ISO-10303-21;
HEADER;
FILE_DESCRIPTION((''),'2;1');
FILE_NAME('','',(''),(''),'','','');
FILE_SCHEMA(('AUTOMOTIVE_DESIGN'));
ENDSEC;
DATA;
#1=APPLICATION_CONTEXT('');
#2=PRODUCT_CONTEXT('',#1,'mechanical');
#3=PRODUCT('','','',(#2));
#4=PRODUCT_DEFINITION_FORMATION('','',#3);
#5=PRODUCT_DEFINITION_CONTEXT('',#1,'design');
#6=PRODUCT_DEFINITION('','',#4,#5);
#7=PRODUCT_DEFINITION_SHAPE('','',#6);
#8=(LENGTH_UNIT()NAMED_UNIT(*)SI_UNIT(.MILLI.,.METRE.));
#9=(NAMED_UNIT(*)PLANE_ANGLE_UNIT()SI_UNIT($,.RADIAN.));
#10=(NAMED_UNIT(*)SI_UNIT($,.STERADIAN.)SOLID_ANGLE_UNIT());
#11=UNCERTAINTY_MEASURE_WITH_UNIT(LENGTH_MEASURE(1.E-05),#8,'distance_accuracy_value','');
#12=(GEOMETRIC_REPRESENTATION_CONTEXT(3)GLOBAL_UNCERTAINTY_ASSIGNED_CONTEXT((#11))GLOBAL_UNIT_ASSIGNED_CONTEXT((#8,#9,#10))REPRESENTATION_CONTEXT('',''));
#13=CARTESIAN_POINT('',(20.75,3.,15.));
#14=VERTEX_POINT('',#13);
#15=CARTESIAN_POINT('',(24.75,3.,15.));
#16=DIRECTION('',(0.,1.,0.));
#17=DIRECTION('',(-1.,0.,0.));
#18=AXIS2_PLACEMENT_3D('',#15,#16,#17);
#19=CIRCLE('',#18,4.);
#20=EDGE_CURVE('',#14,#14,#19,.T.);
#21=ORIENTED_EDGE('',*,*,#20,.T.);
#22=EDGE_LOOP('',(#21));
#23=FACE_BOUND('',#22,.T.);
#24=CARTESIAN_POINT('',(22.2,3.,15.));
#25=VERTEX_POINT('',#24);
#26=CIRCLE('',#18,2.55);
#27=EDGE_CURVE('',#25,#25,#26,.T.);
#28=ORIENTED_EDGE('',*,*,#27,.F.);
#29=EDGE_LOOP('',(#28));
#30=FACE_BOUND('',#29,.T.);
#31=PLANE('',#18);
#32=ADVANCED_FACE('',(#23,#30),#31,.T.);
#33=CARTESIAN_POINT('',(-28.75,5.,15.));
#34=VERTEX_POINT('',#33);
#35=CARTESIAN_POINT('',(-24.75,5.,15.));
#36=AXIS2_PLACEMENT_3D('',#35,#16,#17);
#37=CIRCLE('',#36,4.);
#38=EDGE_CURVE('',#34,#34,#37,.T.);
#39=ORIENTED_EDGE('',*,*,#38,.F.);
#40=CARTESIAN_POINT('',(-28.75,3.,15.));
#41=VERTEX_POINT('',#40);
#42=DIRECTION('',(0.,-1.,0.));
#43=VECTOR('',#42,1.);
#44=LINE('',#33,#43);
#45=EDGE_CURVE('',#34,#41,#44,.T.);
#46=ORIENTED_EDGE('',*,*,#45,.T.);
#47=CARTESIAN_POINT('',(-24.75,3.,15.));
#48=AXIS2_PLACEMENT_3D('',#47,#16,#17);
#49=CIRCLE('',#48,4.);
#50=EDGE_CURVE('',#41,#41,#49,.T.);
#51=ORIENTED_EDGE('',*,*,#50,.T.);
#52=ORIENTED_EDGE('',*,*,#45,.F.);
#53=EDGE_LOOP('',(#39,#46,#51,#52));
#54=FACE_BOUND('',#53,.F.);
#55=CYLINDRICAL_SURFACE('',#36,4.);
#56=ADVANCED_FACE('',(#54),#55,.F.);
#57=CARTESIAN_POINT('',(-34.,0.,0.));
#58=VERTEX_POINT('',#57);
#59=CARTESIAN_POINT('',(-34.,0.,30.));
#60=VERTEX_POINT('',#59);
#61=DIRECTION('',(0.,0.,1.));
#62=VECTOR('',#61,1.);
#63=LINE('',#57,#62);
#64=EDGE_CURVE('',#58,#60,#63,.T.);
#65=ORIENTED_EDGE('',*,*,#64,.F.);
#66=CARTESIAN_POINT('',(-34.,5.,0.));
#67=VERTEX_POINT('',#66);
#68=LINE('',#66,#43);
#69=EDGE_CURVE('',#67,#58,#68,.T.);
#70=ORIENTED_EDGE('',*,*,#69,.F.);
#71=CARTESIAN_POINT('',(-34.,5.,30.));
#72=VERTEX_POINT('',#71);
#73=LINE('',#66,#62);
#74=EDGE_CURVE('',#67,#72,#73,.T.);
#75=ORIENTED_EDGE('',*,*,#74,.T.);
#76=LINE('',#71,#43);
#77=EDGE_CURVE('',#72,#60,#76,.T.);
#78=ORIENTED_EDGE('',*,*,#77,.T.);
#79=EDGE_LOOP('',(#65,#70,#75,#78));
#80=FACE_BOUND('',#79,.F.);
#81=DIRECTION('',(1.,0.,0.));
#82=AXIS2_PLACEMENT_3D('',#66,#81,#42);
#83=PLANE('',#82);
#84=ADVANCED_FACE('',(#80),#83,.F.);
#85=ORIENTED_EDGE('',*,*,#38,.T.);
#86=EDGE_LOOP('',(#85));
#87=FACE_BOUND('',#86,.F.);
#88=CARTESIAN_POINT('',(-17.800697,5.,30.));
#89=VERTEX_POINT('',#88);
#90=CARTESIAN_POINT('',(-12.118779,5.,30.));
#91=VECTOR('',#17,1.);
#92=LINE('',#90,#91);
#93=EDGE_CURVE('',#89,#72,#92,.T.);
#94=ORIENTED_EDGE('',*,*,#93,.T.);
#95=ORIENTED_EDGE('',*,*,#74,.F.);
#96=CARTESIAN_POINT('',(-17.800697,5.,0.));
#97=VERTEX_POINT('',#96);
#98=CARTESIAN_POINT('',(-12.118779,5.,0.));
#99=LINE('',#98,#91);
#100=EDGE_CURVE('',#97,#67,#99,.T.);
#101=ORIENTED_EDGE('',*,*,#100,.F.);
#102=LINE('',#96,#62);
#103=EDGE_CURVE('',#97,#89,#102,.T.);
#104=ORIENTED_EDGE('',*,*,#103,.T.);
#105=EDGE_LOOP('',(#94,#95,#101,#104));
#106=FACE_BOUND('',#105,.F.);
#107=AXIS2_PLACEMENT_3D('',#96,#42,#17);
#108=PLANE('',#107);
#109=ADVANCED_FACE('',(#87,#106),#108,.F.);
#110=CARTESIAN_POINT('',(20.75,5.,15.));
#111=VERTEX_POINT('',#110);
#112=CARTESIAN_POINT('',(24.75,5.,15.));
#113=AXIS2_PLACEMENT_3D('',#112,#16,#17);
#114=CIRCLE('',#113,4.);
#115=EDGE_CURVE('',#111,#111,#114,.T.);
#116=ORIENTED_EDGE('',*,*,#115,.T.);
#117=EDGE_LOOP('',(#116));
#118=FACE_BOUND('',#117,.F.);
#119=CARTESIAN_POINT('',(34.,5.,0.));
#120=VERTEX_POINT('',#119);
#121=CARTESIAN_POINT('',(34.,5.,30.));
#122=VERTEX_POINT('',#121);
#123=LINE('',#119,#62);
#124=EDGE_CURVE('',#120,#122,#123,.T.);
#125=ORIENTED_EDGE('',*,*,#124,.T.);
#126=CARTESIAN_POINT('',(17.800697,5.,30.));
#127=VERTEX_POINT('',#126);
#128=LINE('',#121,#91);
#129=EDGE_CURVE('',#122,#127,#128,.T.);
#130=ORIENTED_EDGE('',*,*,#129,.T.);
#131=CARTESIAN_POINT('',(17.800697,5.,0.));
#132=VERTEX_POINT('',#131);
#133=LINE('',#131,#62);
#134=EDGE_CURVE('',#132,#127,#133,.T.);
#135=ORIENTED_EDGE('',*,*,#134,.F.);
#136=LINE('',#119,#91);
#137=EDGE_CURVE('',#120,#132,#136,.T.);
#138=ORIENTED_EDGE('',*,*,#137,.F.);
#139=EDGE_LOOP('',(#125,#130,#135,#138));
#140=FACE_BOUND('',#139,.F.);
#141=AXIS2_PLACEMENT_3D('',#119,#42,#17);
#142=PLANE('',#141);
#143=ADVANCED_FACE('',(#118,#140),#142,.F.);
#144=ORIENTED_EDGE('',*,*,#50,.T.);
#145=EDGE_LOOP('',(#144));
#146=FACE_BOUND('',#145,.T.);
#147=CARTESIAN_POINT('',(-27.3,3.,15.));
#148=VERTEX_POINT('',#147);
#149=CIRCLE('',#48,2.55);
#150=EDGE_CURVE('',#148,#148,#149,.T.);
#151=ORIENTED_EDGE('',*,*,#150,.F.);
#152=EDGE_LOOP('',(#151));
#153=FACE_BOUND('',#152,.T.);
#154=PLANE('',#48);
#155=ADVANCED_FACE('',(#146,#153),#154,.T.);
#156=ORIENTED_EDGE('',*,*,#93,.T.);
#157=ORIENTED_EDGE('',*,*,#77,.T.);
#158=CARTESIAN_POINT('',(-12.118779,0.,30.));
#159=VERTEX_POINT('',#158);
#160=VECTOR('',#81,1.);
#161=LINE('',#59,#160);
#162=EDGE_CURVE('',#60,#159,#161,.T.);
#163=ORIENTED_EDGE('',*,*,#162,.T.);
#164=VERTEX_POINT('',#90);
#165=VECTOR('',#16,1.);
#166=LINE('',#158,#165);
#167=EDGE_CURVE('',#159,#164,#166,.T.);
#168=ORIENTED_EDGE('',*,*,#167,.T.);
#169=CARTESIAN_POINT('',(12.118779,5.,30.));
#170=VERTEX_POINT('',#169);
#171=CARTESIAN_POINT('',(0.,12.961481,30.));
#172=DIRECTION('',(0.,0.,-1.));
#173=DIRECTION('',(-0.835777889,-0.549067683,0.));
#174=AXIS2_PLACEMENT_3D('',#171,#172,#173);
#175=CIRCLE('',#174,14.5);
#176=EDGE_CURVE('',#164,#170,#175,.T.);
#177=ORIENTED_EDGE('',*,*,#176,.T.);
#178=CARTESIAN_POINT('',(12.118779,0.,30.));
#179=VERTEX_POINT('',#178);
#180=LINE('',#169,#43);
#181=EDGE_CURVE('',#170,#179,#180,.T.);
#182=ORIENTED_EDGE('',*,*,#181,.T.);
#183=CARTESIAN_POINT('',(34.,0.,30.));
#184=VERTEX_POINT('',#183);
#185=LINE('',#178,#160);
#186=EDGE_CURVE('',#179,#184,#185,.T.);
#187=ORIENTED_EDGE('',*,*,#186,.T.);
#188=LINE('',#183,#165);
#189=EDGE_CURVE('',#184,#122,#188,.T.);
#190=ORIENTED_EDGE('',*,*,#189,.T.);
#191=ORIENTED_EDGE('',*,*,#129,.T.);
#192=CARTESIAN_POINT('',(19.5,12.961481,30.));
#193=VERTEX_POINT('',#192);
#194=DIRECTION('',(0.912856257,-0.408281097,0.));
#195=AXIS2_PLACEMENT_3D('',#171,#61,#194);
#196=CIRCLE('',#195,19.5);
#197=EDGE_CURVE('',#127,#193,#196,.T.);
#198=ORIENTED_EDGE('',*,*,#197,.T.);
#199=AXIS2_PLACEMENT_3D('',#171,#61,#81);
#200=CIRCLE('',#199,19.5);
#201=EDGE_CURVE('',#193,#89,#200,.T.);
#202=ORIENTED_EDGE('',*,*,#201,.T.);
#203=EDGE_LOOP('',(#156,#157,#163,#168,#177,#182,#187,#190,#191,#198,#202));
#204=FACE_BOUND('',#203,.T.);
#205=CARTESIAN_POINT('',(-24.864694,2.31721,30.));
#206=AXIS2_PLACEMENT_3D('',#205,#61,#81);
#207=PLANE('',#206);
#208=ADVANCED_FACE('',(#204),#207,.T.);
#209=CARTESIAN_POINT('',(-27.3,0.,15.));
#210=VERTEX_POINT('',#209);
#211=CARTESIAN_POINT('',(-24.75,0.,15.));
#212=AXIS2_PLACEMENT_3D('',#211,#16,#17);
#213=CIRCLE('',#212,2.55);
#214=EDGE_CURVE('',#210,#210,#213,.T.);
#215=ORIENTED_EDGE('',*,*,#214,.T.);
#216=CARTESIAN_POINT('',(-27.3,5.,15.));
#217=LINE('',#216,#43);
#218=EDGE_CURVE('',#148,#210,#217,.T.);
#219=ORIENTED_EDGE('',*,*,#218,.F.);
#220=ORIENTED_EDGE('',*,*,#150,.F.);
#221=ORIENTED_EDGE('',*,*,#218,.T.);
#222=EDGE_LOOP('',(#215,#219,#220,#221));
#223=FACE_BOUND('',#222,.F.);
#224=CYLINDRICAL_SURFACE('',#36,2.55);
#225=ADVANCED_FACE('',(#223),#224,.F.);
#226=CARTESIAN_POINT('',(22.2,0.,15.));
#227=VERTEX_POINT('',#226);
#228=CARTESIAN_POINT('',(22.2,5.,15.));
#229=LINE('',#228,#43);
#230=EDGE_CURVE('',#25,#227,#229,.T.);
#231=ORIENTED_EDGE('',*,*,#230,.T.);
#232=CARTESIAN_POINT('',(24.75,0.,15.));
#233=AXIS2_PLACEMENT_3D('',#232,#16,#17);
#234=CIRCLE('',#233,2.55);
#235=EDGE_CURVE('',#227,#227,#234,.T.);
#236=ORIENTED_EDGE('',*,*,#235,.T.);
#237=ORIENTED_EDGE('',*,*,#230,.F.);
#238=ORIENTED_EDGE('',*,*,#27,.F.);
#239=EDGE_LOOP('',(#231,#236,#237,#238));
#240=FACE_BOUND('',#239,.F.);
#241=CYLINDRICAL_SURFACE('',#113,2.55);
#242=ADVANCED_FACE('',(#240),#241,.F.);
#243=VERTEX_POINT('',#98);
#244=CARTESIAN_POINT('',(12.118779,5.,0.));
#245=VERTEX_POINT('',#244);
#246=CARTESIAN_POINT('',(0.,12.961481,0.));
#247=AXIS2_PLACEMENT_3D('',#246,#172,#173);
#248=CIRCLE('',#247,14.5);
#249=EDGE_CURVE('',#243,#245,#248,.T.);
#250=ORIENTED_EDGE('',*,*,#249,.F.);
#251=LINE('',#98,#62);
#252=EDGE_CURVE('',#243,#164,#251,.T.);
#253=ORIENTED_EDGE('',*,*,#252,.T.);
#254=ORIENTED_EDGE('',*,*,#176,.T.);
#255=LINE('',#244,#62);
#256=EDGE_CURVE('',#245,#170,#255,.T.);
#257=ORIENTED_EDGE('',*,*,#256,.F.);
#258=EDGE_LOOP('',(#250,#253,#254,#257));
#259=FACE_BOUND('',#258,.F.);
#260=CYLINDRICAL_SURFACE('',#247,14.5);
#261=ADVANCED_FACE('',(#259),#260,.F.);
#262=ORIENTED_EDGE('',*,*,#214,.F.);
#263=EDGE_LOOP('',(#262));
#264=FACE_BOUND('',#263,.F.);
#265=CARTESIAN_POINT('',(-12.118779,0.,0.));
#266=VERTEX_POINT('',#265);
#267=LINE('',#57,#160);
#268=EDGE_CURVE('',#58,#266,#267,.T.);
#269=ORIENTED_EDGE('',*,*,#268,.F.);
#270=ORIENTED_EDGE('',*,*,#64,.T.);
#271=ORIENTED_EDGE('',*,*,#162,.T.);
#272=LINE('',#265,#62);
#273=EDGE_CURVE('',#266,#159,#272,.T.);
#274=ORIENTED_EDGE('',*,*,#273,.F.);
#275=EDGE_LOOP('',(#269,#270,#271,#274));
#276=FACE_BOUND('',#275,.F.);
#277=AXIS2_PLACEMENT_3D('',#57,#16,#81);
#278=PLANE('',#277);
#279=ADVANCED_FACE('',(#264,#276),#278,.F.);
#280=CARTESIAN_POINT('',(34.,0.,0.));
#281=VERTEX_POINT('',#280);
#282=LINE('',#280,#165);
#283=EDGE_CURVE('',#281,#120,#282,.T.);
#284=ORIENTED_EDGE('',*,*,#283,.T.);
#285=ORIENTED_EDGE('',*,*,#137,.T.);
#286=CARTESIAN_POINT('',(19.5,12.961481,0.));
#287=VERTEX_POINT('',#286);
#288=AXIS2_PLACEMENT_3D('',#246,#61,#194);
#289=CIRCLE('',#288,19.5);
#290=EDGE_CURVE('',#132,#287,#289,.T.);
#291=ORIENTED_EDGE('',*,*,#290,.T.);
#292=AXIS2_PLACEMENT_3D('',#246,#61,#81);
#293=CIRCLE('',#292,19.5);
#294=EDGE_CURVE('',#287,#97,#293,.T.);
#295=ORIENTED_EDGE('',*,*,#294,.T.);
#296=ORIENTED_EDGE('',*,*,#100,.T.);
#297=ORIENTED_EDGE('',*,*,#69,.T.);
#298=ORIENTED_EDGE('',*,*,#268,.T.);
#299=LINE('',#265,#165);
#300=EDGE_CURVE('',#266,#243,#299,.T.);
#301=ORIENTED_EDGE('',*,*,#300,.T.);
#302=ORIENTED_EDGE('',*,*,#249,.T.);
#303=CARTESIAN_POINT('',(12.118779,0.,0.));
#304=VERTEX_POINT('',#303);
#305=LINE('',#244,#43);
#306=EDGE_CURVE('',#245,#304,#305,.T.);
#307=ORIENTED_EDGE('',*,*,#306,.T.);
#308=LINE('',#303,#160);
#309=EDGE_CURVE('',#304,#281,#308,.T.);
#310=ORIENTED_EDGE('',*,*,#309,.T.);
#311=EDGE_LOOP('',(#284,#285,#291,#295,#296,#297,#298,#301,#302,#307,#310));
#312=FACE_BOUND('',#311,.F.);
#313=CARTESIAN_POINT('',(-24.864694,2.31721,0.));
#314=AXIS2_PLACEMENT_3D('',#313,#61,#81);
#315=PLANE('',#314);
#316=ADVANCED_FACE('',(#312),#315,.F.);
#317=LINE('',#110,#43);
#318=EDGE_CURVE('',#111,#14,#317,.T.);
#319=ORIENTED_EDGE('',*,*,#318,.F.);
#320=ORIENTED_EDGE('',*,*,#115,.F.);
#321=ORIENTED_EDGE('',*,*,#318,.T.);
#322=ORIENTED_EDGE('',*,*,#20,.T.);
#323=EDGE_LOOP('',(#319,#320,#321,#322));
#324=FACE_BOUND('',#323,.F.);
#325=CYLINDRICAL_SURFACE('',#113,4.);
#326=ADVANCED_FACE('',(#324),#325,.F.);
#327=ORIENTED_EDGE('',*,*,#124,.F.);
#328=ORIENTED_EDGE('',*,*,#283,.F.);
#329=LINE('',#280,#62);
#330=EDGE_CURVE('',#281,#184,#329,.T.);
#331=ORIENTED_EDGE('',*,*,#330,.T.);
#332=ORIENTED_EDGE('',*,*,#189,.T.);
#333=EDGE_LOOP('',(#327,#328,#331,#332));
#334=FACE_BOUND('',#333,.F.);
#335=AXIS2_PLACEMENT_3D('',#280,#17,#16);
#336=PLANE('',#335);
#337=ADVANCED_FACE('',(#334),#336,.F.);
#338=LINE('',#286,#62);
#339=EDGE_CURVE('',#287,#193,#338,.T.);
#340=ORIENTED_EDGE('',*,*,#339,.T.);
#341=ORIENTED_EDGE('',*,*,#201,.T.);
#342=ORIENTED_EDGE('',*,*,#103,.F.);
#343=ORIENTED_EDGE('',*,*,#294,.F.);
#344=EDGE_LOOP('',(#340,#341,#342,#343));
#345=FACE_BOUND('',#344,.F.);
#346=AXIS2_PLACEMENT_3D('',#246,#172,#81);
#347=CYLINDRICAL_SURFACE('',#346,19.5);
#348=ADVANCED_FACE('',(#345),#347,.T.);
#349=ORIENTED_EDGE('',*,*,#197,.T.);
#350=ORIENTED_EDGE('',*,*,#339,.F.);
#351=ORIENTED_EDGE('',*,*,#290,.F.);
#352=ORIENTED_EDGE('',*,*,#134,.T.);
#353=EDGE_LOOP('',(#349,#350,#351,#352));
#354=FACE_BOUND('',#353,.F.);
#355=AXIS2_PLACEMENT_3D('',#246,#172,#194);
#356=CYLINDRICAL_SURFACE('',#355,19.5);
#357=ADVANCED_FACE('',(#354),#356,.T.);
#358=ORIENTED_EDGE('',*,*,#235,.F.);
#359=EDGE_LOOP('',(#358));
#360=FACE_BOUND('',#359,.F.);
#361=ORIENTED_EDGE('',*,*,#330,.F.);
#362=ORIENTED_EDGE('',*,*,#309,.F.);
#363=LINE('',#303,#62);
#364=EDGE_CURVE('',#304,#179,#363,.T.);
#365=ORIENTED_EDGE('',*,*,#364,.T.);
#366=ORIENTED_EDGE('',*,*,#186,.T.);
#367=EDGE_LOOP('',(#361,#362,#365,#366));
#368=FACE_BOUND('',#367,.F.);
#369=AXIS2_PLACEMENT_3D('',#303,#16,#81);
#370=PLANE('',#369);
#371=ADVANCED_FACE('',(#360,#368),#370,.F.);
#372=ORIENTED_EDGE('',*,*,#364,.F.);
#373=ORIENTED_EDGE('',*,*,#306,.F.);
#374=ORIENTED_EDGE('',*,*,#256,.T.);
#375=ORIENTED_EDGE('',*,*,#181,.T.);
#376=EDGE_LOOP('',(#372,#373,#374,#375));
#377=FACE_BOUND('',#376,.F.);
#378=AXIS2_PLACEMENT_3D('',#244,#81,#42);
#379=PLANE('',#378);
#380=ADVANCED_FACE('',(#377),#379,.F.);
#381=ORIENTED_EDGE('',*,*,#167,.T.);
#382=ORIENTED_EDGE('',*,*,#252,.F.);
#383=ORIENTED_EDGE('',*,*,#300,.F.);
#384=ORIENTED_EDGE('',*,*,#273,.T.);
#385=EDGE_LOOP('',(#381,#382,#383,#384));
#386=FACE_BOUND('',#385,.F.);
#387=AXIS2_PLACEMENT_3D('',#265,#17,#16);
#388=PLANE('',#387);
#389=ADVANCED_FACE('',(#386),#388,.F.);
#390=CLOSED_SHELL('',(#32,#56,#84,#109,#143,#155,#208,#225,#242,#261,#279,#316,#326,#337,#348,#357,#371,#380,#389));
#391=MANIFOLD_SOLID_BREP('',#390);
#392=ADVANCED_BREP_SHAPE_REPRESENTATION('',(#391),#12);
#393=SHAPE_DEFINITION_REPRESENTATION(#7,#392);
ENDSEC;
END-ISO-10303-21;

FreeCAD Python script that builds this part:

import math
import FreeCAD as App
import Part
import Sketcher

doc = App.newDocument("Part")
body = doc.addObject("PartDesign::Body", "Body")

sketch1 = doc.addObject("Sketcher::SketchObject", "Sketch")
body.addObject(sketch1)
sketch1.AttachmentSupport = (doc.XY_Plane, [""])
sketch1.MapMode = "FlatFace"
sketch1.addGeometry([
    Part.LineSegment(App.Vector(-34, 5, 0), App.Vector(-34, 0, 0)),
    Part.LineSegment(App.Vector(-34, 0, 0), App.Vector(-12, 0, 0)),
    Part.LineSegment(App.Vector(-12, 0, 0), App.Vector(-12, 5, 0)),
    Part.ArcOfCircle(Part.Circle(App.Vector(0, 13, 0), App.Vector(0, 0, 1), 14), math.radians(-33), math.radians(213)),
    Part.LineSegment(App.Vector(12, 5, 0), App.Vector(12, 0, 0)),
    Part.LineSegment(App.Vector(12, 0, 0), App.Vector(34, 0, 0)),
    Part.LineSegment(App.Vector(34, 0, 0), App.Vector(34, 5, 0)),
    Part.LineSegment(App.Vector(34, 5, 0), App.Vector(18, 5, 0)),
    Part.ArcOfCircle(Part.Circle(App.Vector(0, 13, 0), App.Vector(0, 0, 1), 19), math.radians(-24), math.radians(0)),
    Part.ArcOfCircle(Part.Circle(App.Vector(0, 13, 0), App.Vector(0, 0, 1), 20), math.radians(0), math.radians(204)),
    Part.LineSegment(App.Vector(-18, 5, 0), App.Vector(-34, 5, 0)),
], False)
sketch1.addConstraint([
    Sketcher.Constraint("Coincident", 0, 2, 1, 1),
    Sketcher.Constraint("Coincident", 1, 2, 2, 1),
    Sketcher.Constraint("Coincident", 2, 2, 3, 2),
    Sketcher.Constraint("Coincident", 3, 1, 4, 1),
    Sketcher.Constraint("Coincident", 4, 2, 5, 1),
    Sketcher.Constraint("Coincident", 5, 2, 6, 1),
    Sketcher.Constraint("Coincident", 6, 2, 7, 1),
    Sketcher.Constraint("Coincident", 7, 2, 8, 1),
    Sketcher.Constraint("Tangent", 8, 2, 9, 1),
    Sketcher.Constraint("Coincident", 9, 2, 10, 1),
    Sketcher.Constraint("Coincident", 10, 2, 0, 1),
    Sketcher.Constraint("Vertical", 0),
    Sketcher.Constraint("Horizontal", 1),
    Sketcher.Constraint("Vertical", 2),
    Sketcher.Constraint("Vertical", 4),
    Sketcher.Constraint("Horizontal", 5),
    Sketcher.Constraint("Vertical", 6),
    Sketcher.Constraint("Horizontal", 7),
    Sketcher.Constraint("Horizontal", 10),
    Sketcher.Constraint("Coincident", 8, 3, 3, 3),
    Sketcher.Constraint("Equal", 8, 9),
    Sketcher.Constraint("Symmetric", 1, 2, 4, 2, -1, 1),
    Sketcher.Constraint("Symmetric", 0, 2, 5, 2, -2),
    Sketcher.Constraint("Symmetric", 7, 2, 9, 2, -2),
    Sketcher.Constraint("Horizontal", 3, 1, 6, 2),
    Sketcher.Constraint("Horizontal", 9, 3, 8, 2),
    Sketcher.Constraint("Radius", 3, 14.5),
    Sketcher.Constraint("Radius", 8, 19.5),
    Sketcher.Constraint("DistanceY", 0, 2, 0, 1, 5.0),
    Sketcher.Constraint("DistanceX", 0, 2, -1, 1, 34.0),
    Sketcher.Constraint("DistanceX", 1, 1, 1, 2, 21.881221),
])
pad1 = doc.addObject("PartDesign::Pad", "Pad")
body.addObject(pad1)
pad1.Profile = sketch1
pad1.Length = 30

sketch2 = doc.addObject("Sketcher::SketchObject", "Sketch001")
body.addObject(sketch2)
sketch2.AttachmentSupport = (doc.XZ_Plane, [""])
sketch2.MapMode = "FlatFace"
sketch2.AttachmentOffset = App.Placement(App.Vector(0, 0, -5), App.Rotation())
sketch2.addGeometry([
    Part.Circle(App.Vector(24.8, 15, 0), App.Vector(0, 0, 1), 2.5),
    Part.Circle(App.Vector(-24.8, 15, 0), App.Vector(0, 0, 1), 2.5),
], False)
sketch2.addConstraint([
    Sketcher.Constraint("Equal", 0, 1),
    Sketcher.Constraint("Symmetric", 0, 3, 1, 3, -2),
    Sketcher.Constraint("Diameter", 0, 5.1),
    Sketcher.Constraint("DistanceY", -1, 1, 0, 3, 15.0),
    Sketcher.Constraint("DistanceX", 1, 3, 0, 3, 49.5),
])
pocket1 = doc.addObject("PartDesign::Pocket", "Pocket")
body.addObject(pocket1)
pocket1.Profile = sketch2
pocket1.Length = 6
pocket1.Reversed = True

sketch3 = doc.addObject("Sketcher::SketchObject", "Sketch002")
body.addObject(sketch3)
sketch3.AttachmentSupport = (doc.XZ_Plane, [""])
sketch3.MapMode = "FlatFace"
sketch3.AttachmentOffset = App.Placement(App.Vector(0, 0, -5), App.Rotation())
sketch3.addGeometry([
    Part.Circle(App.Vector(-24.8, 15, 0), App.Vector(0, 0, 1), 4),
    Part.Circle(App.Vector(-24.8, 15, 0), App.Vector(0, 0, 1), 2.5),
    Part.Circle(App.Vector(24.8, 15, 0), App.Vector(0, 0, 1), 4),
    Part.Circle(App.Vector(24.8, 15, 0), App.Vector(0, 0, 1), 2.5),
], False)
sketch3.addConstraint([
    Sketcher.Constraint("Coincident", 1, 3, 0, 3),
    Sketcher.Constraint("Coincident", 3, 3, 2, 3),
    Sketcher.Constraint("Equal", 0, 2),
    Sketcher.Constraint("Equal", 1, 3),
    Sketcher.Constraint("Symmetric", 0, 3, 2, 3, -2),
    Sketcher.Constraint("Diameter", 0, 8.0),
    Sketcher.Constraint("Diameter", 1, 5.1),
    Sketcher.Constraint("DistanceY", -1, 1, 0, 3, 15.0),
    Sketcher.Constraint("DistanceX", 0, 3, 2, 3, 49.5),
])
pocket2 = doc.addObject("PartDesign::Pocket", "Pocket001")
body.addObject(pocket2)
pocket2.Profile = sketch3
pocket2.Length = 2
pocket2.Reversed = True

doc.recompute()
